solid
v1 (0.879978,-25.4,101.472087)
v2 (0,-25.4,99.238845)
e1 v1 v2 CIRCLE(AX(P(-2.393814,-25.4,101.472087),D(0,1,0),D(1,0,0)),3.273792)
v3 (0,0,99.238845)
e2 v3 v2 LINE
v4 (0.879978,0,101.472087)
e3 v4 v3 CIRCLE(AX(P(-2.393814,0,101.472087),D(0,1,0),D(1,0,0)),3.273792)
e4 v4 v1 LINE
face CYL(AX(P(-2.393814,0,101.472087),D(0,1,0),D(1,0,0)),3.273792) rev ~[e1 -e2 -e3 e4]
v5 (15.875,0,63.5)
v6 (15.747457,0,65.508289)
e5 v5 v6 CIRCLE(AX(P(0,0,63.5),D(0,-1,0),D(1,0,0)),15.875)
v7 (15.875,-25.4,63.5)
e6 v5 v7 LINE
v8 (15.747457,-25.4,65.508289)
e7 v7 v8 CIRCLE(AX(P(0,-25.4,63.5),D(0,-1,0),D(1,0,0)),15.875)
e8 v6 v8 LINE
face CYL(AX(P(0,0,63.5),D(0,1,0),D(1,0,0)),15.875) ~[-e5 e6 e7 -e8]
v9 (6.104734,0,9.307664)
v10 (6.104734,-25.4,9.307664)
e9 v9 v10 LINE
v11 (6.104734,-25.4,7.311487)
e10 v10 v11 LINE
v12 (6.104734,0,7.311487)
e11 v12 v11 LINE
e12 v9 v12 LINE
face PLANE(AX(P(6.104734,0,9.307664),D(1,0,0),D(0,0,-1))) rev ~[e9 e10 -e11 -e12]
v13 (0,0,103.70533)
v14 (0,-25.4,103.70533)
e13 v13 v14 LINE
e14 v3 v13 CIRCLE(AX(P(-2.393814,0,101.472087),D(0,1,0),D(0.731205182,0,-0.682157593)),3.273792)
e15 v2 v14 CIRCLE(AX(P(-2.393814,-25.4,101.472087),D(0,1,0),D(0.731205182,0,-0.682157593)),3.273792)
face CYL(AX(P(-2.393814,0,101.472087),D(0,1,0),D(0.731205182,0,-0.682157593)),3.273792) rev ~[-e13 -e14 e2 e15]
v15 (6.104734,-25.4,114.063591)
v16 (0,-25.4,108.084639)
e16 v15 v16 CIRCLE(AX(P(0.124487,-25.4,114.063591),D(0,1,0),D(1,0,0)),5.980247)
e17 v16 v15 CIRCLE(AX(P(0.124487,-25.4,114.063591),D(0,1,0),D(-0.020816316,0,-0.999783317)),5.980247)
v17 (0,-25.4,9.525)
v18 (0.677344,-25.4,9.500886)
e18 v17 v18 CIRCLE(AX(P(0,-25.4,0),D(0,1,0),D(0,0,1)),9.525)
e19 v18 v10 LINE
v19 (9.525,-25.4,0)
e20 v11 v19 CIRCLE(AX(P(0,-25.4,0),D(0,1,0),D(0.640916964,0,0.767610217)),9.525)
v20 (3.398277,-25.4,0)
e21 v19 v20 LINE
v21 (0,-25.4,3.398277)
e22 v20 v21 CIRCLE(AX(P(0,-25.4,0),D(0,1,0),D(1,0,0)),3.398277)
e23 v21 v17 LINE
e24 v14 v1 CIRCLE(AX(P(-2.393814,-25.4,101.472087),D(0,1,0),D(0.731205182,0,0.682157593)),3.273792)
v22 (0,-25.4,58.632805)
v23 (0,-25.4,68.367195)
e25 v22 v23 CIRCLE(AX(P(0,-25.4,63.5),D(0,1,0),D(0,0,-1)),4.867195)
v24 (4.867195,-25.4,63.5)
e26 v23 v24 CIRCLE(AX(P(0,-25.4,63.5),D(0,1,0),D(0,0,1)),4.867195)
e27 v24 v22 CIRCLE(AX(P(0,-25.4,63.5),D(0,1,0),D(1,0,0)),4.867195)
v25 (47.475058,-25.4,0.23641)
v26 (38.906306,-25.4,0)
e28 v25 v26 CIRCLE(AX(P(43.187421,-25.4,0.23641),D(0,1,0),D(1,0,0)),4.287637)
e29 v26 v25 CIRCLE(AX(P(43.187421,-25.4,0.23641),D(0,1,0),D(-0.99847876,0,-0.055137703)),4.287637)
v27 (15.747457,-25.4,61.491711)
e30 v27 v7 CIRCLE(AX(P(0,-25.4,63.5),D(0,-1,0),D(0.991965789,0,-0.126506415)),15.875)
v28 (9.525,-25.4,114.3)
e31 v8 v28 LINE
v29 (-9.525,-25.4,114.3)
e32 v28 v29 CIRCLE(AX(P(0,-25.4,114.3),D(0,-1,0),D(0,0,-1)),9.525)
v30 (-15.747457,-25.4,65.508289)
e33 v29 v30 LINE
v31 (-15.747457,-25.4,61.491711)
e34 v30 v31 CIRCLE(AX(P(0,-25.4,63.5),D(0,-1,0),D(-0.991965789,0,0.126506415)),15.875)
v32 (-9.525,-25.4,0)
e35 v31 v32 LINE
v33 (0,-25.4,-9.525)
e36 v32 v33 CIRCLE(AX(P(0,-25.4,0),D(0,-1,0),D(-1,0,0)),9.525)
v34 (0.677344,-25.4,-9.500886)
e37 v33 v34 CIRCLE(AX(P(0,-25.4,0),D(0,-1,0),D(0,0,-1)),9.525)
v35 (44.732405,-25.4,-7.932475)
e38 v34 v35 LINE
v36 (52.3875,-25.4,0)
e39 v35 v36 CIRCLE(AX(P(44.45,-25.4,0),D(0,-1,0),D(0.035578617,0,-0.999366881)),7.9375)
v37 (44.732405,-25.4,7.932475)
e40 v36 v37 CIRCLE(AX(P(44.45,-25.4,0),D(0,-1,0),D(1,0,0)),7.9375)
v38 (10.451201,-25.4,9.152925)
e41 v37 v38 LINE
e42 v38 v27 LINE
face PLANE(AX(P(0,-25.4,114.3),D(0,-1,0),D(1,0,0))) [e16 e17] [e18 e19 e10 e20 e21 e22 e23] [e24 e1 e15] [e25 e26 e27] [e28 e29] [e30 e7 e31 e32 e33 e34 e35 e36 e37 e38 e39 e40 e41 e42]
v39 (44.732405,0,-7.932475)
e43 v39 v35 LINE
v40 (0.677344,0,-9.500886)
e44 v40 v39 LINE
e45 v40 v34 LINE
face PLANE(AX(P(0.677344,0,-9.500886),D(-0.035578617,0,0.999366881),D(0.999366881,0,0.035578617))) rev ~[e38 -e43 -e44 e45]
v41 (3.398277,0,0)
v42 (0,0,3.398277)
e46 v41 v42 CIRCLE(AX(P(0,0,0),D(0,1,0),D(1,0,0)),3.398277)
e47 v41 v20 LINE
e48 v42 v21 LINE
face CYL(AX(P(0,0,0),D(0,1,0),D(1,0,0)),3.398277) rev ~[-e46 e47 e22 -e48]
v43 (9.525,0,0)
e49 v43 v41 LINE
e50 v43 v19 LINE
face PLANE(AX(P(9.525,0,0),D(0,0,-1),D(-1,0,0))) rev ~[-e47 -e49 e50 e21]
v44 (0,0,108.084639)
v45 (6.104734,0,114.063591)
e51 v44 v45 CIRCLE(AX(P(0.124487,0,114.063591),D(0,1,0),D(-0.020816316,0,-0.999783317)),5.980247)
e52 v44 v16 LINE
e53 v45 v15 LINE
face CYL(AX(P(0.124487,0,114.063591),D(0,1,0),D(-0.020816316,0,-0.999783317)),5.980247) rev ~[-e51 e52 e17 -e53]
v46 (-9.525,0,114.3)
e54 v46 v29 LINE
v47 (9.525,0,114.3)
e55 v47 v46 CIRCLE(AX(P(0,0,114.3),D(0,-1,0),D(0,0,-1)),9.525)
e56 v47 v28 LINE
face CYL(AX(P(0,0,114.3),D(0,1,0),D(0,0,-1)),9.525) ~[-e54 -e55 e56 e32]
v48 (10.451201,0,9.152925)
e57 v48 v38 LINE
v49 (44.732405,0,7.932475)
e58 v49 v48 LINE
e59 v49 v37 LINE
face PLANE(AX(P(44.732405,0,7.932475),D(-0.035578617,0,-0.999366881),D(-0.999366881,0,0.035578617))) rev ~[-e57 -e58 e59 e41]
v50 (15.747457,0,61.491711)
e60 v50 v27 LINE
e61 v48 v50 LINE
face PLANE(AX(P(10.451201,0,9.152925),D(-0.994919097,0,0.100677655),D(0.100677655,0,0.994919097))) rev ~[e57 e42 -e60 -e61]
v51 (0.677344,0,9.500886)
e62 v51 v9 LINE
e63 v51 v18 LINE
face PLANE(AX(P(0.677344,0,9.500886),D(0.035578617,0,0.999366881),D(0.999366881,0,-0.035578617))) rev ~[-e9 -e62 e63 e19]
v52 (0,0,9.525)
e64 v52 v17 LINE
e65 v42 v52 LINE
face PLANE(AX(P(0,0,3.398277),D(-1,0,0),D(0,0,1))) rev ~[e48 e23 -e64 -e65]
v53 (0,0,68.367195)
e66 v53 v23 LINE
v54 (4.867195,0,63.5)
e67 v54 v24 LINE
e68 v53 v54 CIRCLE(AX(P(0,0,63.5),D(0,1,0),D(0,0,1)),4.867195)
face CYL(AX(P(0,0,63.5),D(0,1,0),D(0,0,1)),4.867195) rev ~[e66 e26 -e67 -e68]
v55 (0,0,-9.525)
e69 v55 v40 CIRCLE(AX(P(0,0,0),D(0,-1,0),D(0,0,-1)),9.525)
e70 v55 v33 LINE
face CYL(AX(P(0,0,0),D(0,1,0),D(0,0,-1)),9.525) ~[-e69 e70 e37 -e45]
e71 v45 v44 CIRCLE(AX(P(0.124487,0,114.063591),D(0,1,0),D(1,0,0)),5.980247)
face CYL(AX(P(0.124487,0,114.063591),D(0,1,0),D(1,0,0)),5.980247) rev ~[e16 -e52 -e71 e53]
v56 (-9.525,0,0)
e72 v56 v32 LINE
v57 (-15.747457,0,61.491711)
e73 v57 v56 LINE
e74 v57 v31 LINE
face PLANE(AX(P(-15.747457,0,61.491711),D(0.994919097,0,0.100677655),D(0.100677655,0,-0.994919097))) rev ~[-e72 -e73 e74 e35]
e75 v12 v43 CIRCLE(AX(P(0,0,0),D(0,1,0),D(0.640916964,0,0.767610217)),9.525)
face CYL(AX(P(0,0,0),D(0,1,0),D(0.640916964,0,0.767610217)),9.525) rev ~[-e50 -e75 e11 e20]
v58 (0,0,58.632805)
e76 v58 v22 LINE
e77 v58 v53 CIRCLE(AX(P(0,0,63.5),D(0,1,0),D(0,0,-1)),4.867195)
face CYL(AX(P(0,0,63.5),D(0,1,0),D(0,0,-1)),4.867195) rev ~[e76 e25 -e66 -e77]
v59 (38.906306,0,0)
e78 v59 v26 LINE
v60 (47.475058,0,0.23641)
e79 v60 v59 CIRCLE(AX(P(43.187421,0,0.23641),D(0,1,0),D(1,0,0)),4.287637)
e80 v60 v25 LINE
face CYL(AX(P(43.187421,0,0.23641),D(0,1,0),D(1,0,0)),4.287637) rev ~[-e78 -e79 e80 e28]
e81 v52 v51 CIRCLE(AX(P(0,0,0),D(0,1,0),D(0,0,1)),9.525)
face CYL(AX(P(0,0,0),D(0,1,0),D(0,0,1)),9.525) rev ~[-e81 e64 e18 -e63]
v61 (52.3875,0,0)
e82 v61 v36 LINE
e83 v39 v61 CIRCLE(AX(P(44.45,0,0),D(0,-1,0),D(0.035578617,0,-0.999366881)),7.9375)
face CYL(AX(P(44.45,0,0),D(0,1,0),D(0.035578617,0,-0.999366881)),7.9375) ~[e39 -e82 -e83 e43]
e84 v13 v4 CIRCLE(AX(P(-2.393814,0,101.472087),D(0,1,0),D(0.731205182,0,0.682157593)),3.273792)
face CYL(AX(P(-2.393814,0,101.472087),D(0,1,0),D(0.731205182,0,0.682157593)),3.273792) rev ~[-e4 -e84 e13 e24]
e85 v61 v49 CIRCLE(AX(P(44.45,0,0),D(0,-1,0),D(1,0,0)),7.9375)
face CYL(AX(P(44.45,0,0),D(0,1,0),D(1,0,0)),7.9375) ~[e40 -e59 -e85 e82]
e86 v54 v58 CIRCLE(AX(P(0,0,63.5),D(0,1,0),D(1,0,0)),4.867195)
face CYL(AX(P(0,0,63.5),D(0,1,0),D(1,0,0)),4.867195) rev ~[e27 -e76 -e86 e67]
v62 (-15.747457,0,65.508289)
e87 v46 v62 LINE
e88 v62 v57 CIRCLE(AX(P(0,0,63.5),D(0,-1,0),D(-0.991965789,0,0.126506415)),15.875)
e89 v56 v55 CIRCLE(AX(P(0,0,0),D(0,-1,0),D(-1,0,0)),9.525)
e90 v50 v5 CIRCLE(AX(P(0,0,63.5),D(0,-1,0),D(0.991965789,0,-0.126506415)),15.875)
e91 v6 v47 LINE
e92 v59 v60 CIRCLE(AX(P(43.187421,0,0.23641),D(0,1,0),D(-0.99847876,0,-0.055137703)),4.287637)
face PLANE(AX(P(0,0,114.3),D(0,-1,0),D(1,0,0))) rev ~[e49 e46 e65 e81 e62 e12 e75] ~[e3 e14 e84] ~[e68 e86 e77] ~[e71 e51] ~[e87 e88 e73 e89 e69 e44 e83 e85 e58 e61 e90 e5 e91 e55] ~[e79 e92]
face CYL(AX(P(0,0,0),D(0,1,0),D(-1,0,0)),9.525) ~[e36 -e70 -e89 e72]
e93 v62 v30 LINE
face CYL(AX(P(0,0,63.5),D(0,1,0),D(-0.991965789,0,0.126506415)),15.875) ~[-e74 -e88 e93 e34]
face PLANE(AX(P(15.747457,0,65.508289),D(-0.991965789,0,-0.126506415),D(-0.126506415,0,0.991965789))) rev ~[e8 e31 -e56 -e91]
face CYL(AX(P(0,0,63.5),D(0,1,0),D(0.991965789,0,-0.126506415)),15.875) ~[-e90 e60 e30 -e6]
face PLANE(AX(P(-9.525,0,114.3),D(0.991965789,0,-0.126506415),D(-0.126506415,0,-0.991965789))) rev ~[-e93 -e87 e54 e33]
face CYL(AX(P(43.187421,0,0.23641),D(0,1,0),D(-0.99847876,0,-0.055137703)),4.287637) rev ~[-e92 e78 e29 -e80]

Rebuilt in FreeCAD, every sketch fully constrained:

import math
import FreeCAD as App
import Part
import Sketcher
Q = App.Units.Quantity

doc = App.newDocument("Part")
body = doc.addObject("PartDesign::Body", "Body")

# Sketch on XZ plane
sketch1 = body.newObject("Sketcher::SketchObject", "Sketch")
sketch1.AttachmentSupport = (doc.getObject("XZ_Plane"), [""])
sketch1.MapMode = "FlatFace"
sketch1.addGeometry([
    Part.ArcOfCircle(Part.Circle(App.Vector(0, 0, 0), App.Vector(0, 0, 1), 9.5), math.radians(-90), math.radians(-85.92)),  # 0
    Part.LineSegment(App.Vector(0.7, -9.5, 0), App.Vector(44.7, -7.9, 0)),  # 1
    Part.ArcOfCircle(Part.Circle(App.Vector(44.5, 0, 0), App.Vector(0, 0, 1), 7.9), math.radians(-88), math.radians(0)),  # 2
    Part.ArcOfCircle(Part.Circle(App.Vector(44.5, 0, 0), App.Vector(0, 0, 1), 7.9), math.radians(0), math.radians(88)),  # 3
    Part.LineSegment(App.Vector(44.7, 7.9, 0), App.Vector(10.5, 9.2, 0)),  # 4
    Part.LineSegment(App.Vector(10.5, 9.2, 0), App.Vector(15.7, 61.5, 0)),  # 5
    Part.ArcOfCircle(Part.Circle(App.Vector(0, 63.5, 0), App.Vector(0, 0, 1), 15.9), math.radians(-7.27), math.radians(0)),  # 6
    Part.ArcOfCircle(Part.Circle(App.Vector(0, 63.5, 0), App.Vector(0, 0, 1), 15.9), math.radians(0), math.radians(7.27)),  # 7
    Part.LineSegment(App.Vector(15.7, 65.5, 0), App.Vector(9.5, 114.3, 0)),  # 8
    Part.ArcOfCircle(Part.Circle(App.Vector(0, 114.3, 0), App.Vector(0, 0, 1), 9.5), math.radians(0), math.radians(180)),  # 9
    Part.LineSegment(App.Vector(-9.5, 114.3, 0), App.Vector(-15.7, 65.5, 0)),  # 10
    Part.ArcOfCircle(Part.Circle(App.Vector(0, 63.5, 0), App.Vector(0, 0, 1), 15.9), math.radians(172.73), math.radians(187.27)),  # 11
    Part.LineSegment(App.Vector(-15.7, 61.5, 0), App.Vector(-9.5, 0, 0)),  # 12
    Part.ArcOfCircle(Part.Circle(App.Vector(0, 0, 0), App.Vector(0, 0, 1), 9.5), math.radians(180), math.radians(270)),  # 13
    Part.ArcOfCircle(Part.Circle(App.Vector(0, 0, 0), App.Vector(0, 0, 1), 9.5), math.radians(0), math.radians(50)),  # 14
    Part.LineSegment(App.Vector(9.5, 0, 0), App.Vector(3.4, 0, 0)),  # 15
    Part.ArcOfCircle(Part.Circle(App.Vector(0, 0, 0), App.Vector(0, 0, 1), 3.4), math.radians(90), math.radians(360)),  # 16
    Part.LineSegment(App.Vector(0, 3.4, 0), App.Vector(0, 9.5, 0)),  # 17
    Part.ArcOfCircle(Part.Circle(App.Vector(0, 0, 0), App.Vector(0, 0, 1), 9.5), math.radians(85.92), math.radians(90)),  # 18
    Part.LineSegment(App.Vector(0.7, 9.5, 0), App.Vector(6.1, 9.3, 0)),  # 19
    Part.LineSegment(App.Vector(6.1, 9.3, 0), App.Vector(6.1, 7.3, 0)),  # 20
    Part.ArcOfCircle(Part.Circle(App.Vector(43.2, 0.2, 0), App.Vector(0, 0, 1), 4.3), math.radians(0), math.radians(183)),  # 21
    Part.ArcOfCircle(Part.Circle(App.Vector(43.2, 0.2, 0), App.Vector(0, 0, 1), 4.3), math.radians(-177), math.radians(0)),  # 22
    Part.ArcOfCircle(Part.Circle(App.Vector(0, 63.5, 0), App.Vector(0, 0, 1), 4.9), math.radians(90), math.radians(270)),  # 23
    Part.ArcOfCircle(Part.Circle(App.Vector(0, 63.5, 0), App.Vector(0, 0, 1), 4.9), math.radians(0), math.radians(90)),  # 24
    Part.ArcOfCircle(Part.Circle(App.Vector(0, 63.5, 0), App.Vector(0, 0, 1), 4.9), math.radians(-90), math.radians(0)),  # 25
    Part.ArcOfCircle(Part.Circle(App.Vector(-2.4, 101.5, 0), App.Vector(0, 0, 1), 3.3), math.radians(0), math.radians(43)),  # 26
    Part.ArcOfCircle(Part.Circle(App.Vector(-2.4, 101.5, 0), App.Vector(0, 0, 1), 3.3), math.radians(-43), math.radians(0)),  # 27
    Part.ArcOfCircle(Part.Circle(App.Vector(-2.4, 101.5, 0), App.Vector(0, 0, 1), 3.3), math.radians(43), math.radians(317)),  # 28
    Part.ArcOfCircle(Part.Circle(App.Vector(0.1, 114.1, 0), App.Vector(0, 0, 1), 6), math.radians(0), math.radians(269)),  # 29
    Part.ArcOfCircle(Part.Circle(App.Vector(0.1, 114.1, 0), App.Vector(0, 0, 1), 6), math.radians(-91), math.radians(0)),  # 30
], False)
sketch1.addConstraint([
    Sketcher.Constraint("Coincident", 0, 2, 1, 1),
    Sketcher.Constraint("Tangent", 1, 2, 2, 1),
    Sketcher.Constraint("Tangent", 2, 2, 3, 1),
    Sketcher.Constraint("Tangent", 3, 2, 4, 1),
    Sketcher.Constraint("Coincident", 4, 2, 5, 1),
    Sketcher.Constraint("Coincident", 5, 2, 6, 1),
    Sketcher.Constraint("Tangent", 6, 2, 7, 1),
    Sketcher.Constraint("Tangent", 7, 2, 8, 1),
    Sketcher.Constraint("Coincident", 8, 2, 9, 1),
    Sketcher.Constraint("Coincident", 9, 2, 10, 1),
    Sketcher.Constraint("Tangent", 10, 2, 11, 1),
    Sketcher.Constraint("Coincident", 11, 2, 12, 1),
    Sketcher.Constraint("Coincident", 12, 2, 13, 1),
    Sketcher.Constraint("Tangent", 13, 2, 0, 1),
    Sketcher.Constraint("Coincident", 14, 1, 15, 1),
    Sketcher.Constraint("Coincident", 15, 2, 16, 2),
    Sketcher.Constraint("Coincident", 16, 1, 17, 1),
    Sketcher.Constraint("Coincident", 17, 2, 18, 2),
    Sketcher.Constraint("Coincident", 18, 1, 19, 1),
    Sketcher.Constraint("Coincident", 19, 2, 20, 1),
    Sketcher.Constraint("Coincident", 20, 2, 14, 2),
    Sketcher.Constraint("Tangent", 21, 1, 22, 2),
    Sketcher.Constraint("Coincident", 22, 1, 21, 2),
    Sketcher.Constraint("Tangent", 23, 1, 24, 2),
    Sketcher.Constraint("Tangent", 24, 1, 25, 2),
    Sketcher.Constraint("Tangent", 25, 1, 23, 2),
    Sketcher.Constraint("Tangent", 26, 1, 27, 2),
    Sketcher.Constraint("Tangent", 27, 1, 28, 2),
    Sketcher.Constraint("Tangent", 28, 1, 26, 2),
    Sketcher.Constraint("Tangent", 29, 1, 30, 2),
    Sketcher.Constraint("Coincident", 30, 1, 29, 2),
    Sketcher.Constraint("Horizontal", 15),
    Sketcher.Constraint("Vertical", 17),
    Sketcher.Constraint("Vertical", 20),
    Sketcher.Constraint("Coincident", 0, 3, -1, 1),
    Sketcher.Constraint("Coincident", 14, 3, -1, 1),
    Sketcher.Constraint("Coincident", 16, 3, -1, 1),
    Sketcher.Constraint("Coincident", 18, 3, -1, 1),
    Sketcher.Constraint("Coincident", 11, 3, 6, 3),
    Sketcher.Constraint("Coincident", 23, 3, 6, 3),
    Sketcher.Constraint("Equal", 2, 3),
    Sketcher.Constraint("Equal", 6, 7),
    Sketcher.Constraint("Equal", 0, 9),
    Sketcher.Constraint("Equal", 7, 11),
    Sketcher.Constraint("Equal", 9, 13),
    Sketcher.Constraint("Equal", 13, 14),
    Sketcher.Constraint("Equal", 14, 18),
    Sketcher.Constraint("Symmetric", 8, 2, 9, 2, -2),
    Sketcher.Constraint("Symmetric", 5, 2, 11, 2, -2),
    Sketcher.Constraint("Symmetric", 1, 2, 3, 2, -1),
    Sketcher.Constraint("PointOnObject", 2, 2, -1),
    Sketcher.Constraint("PointOnObject", 12, 2, -1),
    Sketcher.Constraint("PointOnObject", 13, 2, -2),
    Sketcher.Constraint("PointOnObject", 14, 1, -1),
    Sketcher.Constraint("PointOnObject", 16, 1, -2),
    Sketcher.Constraint("PointOnObject", 22, 1, -1),
    Sketcher.Constraint("PointOnObject", 23, 1, -2),
    Sketcher.Constraint("PointOnObject", 25, 1, -2),
    Sketcher.Constraint("PointOnObject", 27, 1, -2),
    Sketcher.Constraint("PointOnObject", 28, 1, -2),
    Sketcher.Constraint("PointOnObject", 30, 1, -2),
    Sketcher.Constraint("Parallel", 4, 19),
    Sketcher.Constraint("Horizontal", 25, 3, 6, 2),
    Sketcher.Constraint("Horizontal", 9, 3, 8, 2),
    Sketcher.Constraint("Horizontal", 22, 3, 21, 1),
    Sketcher.Constraint("Horizontal", 6, 2, 24, 1),
    Sketcher.Constraint("Horizontal", 28, 3, 26, 1),
    Sketcher.Constraint("Horizontal", 30, 3, 29, 1),
    Sketcher.Constraint("Vertical", 5, 2, 7, 2),
    Sketcher.Constraint("Vertical", 0, 2, 18, 1),
    Sketcher.Constraint("Vertical", 20, 2, 29, 1),
    Sketcher.Constraint("Radius", 0, Q("0.375 in")),
    Sketcher.Constraint("Radius", 2, Q("0.3125 in")),
    Sketcher.Constraint("Radius", 6, Q("0.625 in")),
    Sketcher.Constraint("DistanceY", 7, 3, 9, 3, Q("2 in")),
    Sketcher.Constraint("DistanceY", -1, 1, 6, 3, Q("2.5 in")),
    Sketcher.Constraint("DistanceX", -1, 1, 2, 3, Q("1.75 in")),
    Sketcher.Constraint("Radius", 16, 3.398277),
    Sketcher.Constraint("Radius", 21, 4.287637),
    Sketcher.Constraint("Radius", 23, 4.867195),
    Sketcher.Constraint("Radius", 26, 3.273792),
    Sketcher.Constraint("Radius", 29, 5.980247),
    Sketcher.Constraint("DistanceX", -1, 1, 4, 2, 10.451201),
    Sketcher.Constraint("DistanceX", 27, 3, 29, 3, 2.518301),
    Sketcher.Constraint("DistanceY", 20, 2, 18, 1, 2.189398),
    Sketcher.Constraint("Distance", 1, 44.082972),
    Sketcher.Constraint("DistanceX", -1, 1, 21, 3, 43.187421),
    Sketcher.Constraint("DistanceY", -1, 1, 21, 3, 0.23641),
    Sketcher.Constraint("DistanceY", -1, 1, 29, 3, 114.063591),
    Sketcher.Constraint("DistanceY", -1, 1, 28, 1, 103.70533),
])
pad1 = body.newObject("PartDesign::Pad", "Pad")
pad1.Profile = sketch1
pad1.Length = Q("1 in")

doc.recompute()
